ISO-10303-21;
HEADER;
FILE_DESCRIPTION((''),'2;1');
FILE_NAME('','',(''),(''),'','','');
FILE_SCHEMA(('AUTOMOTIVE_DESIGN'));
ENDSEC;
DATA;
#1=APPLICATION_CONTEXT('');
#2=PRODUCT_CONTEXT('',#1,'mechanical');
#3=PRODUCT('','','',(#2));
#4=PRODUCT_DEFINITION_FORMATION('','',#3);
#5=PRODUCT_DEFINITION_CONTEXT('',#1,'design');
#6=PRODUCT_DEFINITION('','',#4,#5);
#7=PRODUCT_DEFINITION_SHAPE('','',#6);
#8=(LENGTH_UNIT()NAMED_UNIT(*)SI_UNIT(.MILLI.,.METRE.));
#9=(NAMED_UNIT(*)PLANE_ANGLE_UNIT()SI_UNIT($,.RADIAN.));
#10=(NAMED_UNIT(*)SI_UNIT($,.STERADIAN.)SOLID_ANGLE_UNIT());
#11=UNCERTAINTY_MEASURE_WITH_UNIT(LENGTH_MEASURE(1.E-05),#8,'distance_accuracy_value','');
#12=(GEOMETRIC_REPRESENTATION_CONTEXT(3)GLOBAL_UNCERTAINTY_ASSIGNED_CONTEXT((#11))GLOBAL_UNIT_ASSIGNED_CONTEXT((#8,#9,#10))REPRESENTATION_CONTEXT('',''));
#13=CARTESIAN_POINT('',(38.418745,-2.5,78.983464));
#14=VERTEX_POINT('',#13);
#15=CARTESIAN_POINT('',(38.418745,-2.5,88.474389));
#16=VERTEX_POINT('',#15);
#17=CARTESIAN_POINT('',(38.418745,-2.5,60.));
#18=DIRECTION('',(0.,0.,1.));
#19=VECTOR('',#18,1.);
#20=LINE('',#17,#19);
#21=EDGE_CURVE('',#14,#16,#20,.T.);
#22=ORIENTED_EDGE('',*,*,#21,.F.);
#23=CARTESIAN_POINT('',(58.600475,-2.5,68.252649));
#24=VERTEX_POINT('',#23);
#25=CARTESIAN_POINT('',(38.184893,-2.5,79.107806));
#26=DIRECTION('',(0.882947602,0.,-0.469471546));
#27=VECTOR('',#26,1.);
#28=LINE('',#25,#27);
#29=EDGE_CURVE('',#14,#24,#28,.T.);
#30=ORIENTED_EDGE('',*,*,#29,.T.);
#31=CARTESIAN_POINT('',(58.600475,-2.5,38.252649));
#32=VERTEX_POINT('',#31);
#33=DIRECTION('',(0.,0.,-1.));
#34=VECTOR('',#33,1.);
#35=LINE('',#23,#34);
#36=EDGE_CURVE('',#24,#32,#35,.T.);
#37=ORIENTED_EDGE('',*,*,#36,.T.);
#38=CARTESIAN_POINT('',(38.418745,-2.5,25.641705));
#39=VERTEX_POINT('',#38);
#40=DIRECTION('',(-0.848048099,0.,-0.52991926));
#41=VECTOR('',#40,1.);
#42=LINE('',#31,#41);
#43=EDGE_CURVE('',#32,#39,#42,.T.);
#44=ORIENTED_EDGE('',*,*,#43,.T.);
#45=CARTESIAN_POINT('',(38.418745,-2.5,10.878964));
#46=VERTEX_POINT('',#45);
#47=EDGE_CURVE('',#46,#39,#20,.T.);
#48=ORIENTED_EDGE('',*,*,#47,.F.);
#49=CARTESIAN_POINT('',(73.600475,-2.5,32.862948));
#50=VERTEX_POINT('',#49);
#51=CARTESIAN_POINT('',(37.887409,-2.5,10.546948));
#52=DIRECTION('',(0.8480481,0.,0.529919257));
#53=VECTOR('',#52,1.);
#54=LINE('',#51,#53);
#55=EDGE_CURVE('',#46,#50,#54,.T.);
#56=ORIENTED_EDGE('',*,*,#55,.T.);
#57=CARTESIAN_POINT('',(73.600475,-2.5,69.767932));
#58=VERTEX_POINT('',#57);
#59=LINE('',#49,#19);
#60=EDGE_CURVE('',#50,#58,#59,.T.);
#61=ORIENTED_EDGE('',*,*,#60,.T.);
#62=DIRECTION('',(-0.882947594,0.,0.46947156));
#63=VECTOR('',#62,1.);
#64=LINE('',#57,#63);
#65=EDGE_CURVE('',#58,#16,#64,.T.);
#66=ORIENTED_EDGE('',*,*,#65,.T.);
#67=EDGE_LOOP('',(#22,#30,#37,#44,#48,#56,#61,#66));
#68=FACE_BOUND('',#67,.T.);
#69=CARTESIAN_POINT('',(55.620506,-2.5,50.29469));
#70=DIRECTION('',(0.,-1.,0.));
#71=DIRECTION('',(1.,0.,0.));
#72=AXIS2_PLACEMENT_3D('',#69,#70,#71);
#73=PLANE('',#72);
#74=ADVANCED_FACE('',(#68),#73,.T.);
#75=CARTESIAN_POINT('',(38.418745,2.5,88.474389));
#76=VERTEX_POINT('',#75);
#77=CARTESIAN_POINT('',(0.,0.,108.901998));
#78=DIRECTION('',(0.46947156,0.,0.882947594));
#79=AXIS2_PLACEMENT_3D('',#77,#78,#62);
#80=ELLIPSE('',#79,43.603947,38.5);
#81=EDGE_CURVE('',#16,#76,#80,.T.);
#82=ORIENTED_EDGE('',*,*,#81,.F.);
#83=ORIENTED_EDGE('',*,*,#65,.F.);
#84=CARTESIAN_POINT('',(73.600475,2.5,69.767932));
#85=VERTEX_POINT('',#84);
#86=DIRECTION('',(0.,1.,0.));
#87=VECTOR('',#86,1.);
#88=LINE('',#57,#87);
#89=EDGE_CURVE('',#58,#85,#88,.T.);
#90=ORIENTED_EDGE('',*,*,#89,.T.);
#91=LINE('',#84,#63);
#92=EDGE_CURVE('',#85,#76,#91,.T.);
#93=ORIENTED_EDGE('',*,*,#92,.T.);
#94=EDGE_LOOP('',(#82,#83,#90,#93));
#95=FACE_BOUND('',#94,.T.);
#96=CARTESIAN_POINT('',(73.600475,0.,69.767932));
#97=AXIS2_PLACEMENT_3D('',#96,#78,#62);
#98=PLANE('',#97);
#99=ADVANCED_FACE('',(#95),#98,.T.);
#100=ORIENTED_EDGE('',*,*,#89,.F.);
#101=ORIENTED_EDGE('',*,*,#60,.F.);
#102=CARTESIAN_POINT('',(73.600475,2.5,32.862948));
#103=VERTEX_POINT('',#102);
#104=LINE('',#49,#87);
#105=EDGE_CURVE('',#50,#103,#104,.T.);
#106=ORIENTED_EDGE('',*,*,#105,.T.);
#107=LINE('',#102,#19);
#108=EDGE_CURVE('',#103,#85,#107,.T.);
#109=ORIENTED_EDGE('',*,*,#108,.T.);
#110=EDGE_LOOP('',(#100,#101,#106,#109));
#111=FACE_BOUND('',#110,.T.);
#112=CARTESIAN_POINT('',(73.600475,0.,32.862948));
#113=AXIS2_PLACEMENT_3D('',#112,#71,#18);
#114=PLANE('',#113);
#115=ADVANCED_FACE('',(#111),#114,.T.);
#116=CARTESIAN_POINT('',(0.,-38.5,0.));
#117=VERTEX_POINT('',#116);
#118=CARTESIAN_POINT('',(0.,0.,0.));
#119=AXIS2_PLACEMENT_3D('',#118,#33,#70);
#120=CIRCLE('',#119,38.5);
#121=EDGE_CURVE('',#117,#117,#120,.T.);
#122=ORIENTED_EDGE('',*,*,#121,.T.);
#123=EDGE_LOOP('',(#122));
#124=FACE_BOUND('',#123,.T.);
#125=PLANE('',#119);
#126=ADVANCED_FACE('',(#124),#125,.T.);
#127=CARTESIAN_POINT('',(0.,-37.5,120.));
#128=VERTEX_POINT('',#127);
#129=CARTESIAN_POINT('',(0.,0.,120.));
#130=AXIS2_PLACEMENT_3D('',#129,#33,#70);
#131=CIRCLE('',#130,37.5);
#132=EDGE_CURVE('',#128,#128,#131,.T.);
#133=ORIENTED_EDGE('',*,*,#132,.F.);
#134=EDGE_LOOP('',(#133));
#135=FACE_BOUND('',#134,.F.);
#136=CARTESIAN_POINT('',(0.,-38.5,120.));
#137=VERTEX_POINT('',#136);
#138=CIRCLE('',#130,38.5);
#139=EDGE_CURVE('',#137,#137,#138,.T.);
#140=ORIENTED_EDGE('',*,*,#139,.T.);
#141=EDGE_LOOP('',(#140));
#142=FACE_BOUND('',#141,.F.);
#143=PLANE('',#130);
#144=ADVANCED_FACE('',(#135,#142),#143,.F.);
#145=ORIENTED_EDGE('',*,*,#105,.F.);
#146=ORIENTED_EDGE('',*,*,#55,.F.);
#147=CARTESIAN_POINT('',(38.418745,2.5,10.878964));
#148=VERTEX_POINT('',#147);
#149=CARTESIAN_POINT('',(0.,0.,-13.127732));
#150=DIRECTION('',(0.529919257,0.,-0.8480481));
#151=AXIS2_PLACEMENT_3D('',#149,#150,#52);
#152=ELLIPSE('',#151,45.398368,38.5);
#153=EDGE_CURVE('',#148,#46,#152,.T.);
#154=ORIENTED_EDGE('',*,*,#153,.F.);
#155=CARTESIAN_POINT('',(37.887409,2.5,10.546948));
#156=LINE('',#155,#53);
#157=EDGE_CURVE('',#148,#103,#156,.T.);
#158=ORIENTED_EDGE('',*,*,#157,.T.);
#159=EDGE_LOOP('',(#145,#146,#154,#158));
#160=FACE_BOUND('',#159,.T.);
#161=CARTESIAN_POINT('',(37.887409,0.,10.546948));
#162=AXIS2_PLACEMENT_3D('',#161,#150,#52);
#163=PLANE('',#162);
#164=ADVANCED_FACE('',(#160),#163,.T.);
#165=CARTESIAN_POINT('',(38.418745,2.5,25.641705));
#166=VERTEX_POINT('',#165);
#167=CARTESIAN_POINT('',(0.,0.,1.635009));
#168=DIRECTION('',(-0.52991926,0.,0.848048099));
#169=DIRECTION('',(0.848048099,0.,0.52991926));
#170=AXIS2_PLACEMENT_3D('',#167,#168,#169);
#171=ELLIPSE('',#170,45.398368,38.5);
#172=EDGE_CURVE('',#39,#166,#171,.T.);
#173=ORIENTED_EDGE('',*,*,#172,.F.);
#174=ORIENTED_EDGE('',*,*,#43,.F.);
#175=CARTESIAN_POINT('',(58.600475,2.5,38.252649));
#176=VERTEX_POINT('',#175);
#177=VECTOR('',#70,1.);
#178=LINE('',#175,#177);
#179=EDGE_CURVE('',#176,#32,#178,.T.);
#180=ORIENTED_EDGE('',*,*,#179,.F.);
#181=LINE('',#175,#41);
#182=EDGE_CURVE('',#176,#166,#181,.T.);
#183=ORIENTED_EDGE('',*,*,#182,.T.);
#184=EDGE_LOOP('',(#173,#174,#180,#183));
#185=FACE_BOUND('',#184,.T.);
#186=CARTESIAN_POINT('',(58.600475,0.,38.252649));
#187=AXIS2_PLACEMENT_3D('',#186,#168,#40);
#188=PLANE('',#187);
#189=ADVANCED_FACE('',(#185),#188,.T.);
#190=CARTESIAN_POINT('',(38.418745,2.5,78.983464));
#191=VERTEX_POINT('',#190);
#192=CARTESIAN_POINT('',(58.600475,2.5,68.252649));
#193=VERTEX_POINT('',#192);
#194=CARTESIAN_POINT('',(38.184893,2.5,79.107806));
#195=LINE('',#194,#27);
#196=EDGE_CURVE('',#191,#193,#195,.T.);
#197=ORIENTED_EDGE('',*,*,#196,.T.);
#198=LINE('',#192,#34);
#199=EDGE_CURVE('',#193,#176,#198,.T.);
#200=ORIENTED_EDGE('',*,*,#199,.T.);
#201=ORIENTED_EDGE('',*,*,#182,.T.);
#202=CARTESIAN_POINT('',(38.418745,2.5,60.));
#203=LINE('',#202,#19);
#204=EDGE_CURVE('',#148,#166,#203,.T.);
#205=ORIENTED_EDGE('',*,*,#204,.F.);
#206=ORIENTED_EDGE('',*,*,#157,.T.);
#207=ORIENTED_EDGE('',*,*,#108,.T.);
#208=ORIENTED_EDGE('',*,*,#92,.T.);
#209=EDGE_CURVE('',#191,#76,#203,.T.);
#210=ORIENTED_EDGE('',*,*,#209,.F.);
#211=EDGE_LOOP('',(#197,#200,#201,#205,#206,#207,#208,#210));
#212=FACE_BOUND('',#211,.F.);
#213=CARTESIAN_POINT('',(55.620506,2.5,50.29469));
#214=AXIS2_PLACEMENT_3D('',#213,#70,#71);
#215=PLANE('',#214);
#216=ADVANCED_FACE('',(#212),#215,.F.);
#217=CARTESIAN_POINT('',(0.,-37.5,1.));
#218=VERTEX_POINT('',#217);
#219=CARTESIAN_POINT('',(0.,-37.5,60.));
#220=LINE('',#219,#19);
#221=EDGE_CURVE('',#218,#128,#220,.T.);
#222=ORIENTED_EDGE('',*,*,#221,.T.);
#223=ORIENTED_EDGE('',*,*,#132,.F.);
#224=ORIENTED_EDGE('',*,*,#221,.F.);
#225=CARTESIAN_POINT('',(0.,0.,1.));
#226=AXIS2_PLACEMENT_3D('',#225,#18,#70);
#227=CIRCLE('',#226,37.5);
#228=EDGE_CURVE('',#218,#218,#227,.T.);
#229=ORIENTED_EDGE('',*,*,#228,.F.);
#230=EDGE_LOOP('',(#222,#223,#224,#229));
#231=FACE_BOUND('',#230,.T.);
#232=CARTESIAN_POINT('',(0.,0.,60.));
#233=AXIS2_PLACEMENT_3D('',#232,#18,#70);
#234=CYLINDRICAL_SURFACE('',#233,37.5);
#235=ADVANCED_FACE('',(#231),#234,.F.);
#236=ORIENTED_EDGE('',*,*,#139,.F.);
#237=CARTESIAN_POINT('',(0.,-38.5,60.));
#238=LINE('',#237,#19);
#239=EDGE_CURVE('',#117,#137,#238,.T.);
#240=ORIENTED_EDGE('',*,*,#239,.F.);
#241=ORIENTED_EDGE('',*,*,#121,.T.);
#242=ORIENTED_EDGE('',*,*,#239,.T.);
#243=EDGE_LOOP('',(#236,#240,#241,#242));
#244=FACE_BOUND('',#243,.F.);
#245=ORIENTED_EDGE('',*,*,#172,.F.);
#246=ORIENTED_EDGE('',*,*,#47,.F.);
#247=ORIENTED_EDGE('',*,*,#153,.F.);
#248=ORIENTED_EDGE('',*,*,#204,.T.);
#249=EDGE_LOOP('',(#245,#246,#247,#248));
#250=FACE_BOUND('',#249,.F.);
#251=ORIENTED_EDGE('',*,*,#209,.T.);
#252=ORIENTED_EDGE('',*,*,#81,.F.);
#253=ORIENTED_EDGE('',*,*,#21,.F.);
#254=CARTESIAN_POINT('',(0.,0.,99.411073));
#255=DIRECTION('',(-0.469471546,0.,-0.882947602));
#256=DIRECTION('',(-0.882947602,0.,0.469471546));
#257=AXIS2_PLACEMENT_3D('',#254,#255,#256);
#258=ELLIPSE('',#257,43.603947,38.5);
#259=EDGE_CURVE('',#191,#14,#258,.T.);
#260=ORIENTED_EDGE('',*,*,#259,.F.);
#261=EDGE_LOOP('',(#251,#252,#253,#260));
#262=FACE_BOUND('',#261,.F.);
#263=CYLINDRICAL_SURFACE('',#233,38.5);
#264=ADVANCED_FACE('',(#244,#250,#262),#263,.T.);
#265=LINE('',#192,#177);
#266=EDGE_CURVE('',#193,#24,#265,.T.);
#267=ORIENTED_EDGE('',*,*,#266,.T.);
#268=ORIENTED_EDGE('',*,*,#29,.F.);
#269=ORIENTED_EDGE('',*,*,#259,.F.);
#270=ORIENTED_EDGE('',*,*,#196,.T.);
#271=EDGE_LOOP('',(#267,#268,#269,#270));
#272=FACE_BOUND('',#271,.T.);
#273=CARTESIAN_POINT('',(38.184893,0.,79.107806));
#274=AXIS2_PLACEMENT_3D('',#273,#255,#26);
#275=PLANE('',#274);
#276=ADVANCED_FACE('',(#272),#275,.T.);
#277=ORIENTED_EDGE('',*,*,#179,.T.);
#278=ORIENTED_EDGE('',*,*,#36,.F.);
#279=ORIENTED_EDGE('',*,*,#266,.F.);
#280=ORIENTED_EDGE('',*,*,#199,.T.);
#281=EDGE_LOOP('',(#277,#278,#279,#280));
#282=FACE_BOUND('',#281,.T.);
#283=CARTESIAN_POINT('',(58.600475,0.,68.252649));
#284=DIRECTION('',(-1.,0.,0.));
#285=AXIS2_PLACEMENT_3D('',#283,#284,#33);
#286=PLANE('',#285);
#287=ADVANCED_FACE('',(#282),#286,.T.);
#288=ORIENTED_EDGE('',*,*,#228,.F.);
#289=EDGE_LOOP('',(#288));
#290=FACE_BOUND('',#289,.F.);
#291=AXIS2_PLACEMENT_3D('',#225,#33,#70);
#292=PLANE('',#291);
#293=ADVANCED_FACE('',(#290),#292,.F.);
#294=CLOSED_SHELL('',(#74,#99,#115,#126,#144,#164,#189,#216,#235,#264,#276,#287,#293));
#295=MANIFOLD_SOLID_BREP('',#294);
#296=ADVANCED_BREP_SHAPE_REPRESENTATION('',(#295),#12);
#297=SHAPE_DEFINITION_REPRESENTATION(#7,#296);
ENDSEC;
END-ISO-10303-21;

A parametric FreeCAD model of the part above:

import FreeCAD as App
import Part
import Sketcher
from FreeCAD import Vector
Q = App.Units.Quantity


def faces_at(feature, points):
    """Names of the faces that lie closest to the given points."""
    faces = feature.Shape.Faces
    near = lambda p: min(range(len(faces)), key=lambda i: faces[i].distToShape(Part.Vertex(*p))[0])
    return sorted({f"Face{near(p) + 1}" for p in points})

doc = App.newDocument("Part")
params = doc.addObject("Spreadsheet::Sheet", "Params")
for row, (alias, value) in enumerate([
    ("sketch1_height", "120 mm"),
    ("sketch1_width", "38.5 mm"),
    ("revolution_angle", "360 deg"),
    ("thickness_wall", "1 mm"),
    ("sketch2_height", "30 mm"),
    ("pad1_length", "5 mm"),
], start=1):
    params.set(f"A{row}", alias)
    params.set(f"B{row}", "=" + value)
    params.setAlias(f"B{row}", alias)

body = doc.addObject("PartDesign::Body", "Body")

sketch1 = body.newObject("Sketcher::SketchObject", "Sketch")
sketch1.AttachmentSupport = (doc.getObject("YZ_Plane"), [""])
sketch1.MapMode = "FlatFace"
sketch1.addGeometry(Part.LineSegment(Vector(-38.5, 120, 0), Vector(-38.5, 0, 0)), False)
sketch1.addGeometry(Part.LineSegment(Vector(-38.5, 0, 0), Vector(0, 0, 0)), False)
sketch1.addGeometry(Part.LineSegment(Vector(0, 0, 0), Vector(0, 120, 0)), False)
sketch1.addGeometry(Part.LineSegment(Vector(0, 120, 0), Vector(-38.5, 120, 0)), False)
sketch1.addConstraint(Sketcher.Constraint("Coincident", 0, 2, 1, 1))
sketch1.addConstraint(Sketcher.Constraint("Coincident", 1, 2, 2, 1))
sketch1.addConstraint(Sketcher.Constraint("Coincident", 2, 2, 3, 1))
sketch1.addConstraint(Sketcher.Constraint("Coincident", 3, 2, 0, 1))
sketch1.addConstraint(Sketcher.Constraint("Vertical", 0))
sketch1.addConstraint(Sketcher.Constraint("Horizontal", 1))
sketch1.addConstraint(Sketcher.Constraint("Vertical", 2))
sketch1.addConstraint(Sketcher.Constraint("Horizontal", 3))
sketch1.addConstraint(Sketcher.Constraint("Coincident", 1, 2, -1, 1))
sketch1.addConstraint(Sketcher.Constraint("DistanceY", 0, 2, 0, 1, Q("120 mm")))
sketch1.addConstraint(Sketcher.Constraint("DistanceX", 1, 1, 1, 2, Q("38.5 mm")))
sketch1.setExpression("Constraints[9]", "Params.sketch1_height")
sketch1.setExpression("Constraints[10]", "Params.sketch1_width")
revolution = body.newObject("PartDesign::Revolution", "Revolution")
revolution.Profile = sketch1
revolution.ReferenceAxis = (sketch1, ["V_Axis"])
revolution.setExpression("Angle", "Params.revolution_angle")
doc.recompute()

thickness = body.newObject("PartDesign::Thickness", "Thickness")
thickness.Base = (revolution, faces_at(revolution, [(0, 0, 120)]))
thickness.setExpression("Value", "Params.thickness_wall")
thickness.Reversed = True
thickness.Join = "Arc"

sketch2 = body.newObject("Sketcher::SketchObject", "Sketch001")
sketch2.AttachmentSupport = (doc.getObject("XZ_Plane"), [""])
sketch2.MapMode = "FlatFace"
sketch2.addGeometry(Part.LineSegment(Vector(73.600475, 69.767932, 0), Vector(38.349035, 88.511455, 0)), False)
sketch2.addGeometry(Part.LineSegment(Vector(38.349035, 88.511455, 0), Vector(38.184893, 79.107806, 0)), False)
sketch2.addGeometry(Part.LineSegment(Vector(38.184893, 79.107806, 0), Vector(58.600475, 68.252649, 0)), False)
sketch2.addGeometry(Part.LineSegment(Vector(58.600475, 68.252649, 0), Vector(58.600475, 38.252649, 0)), False)
sketch2.addGeometry(Part.LineSegment(Vector(58.600475, 38.252649, 0), Vector(37.887409, 25.309689, 0)), False)
sketch2.addGeometry(Part.LineSegment(Vector(37.887409, 25.309689, 0), Vector(37.887409, 10.546948, 0)), False)
sketch2.addGeometry(Part.LineSegment(Vector(37.887409, 10.546948, 0), Vector(73.600475, 32.862948, 0)), False)
sketch2.addGeometry(Part.LineSegment(Vector(73.600475, 32.862948, 0), Vector(73.600475, 69.767932, 0)), False)
sketch2.addConstraint(Sketcher.Constraint("Coincident", 0, 2, 1, 1))
sketch2.addConstraint(Sketcher.Constraint("Coincident", 1, 2, 2, 1))
sketch2.addConstraint(Sketcher.Constraint("Coincident", 2, 2, 3, 1))
sketch2.addConstraint(Sketcher.Constraint("Coincident", 3, 2, 4, 1))
sketch2.addConstraint(Sketcher.Constraint("Coincident", 4, 2, 5, 1))
sketch2.addConstraint(Sketcher.Constraint("Coincident", 5, 2, 6, 1))
sketch2.addConstraint(Sketcher.Constraint("Coincident", 6, 2, 7, 1))
sketch2.addConstraint(Sketcher.Constraint("Coincident", 7, 2, 0, 1))
sketch2.addConstraint(Sketcher.Constraint("Vertical", 3))
sketch2.addConstraint(Sketcher.Constraint("Vertical", 5))
sketch2.addConstraint(Sketcher.Constraint("Vertical", 7))
sketch2.addConstraint(Sketcher.Constraint("Parallel", 0, 2))
sketch2.addConstraint(Sketcher.Constraint("Parallel", 4, 6))
sketch2.addConstraint(Sketcher.Constraint("DistanceY", 3, 2, 3, 1, Q("30 mm")))
sketch2.addConstraint(Sketcher.Constraint("Angle", 0, Q("152 deg")))
sketch2.addConstraint(Sketcher.Constraint("Angle", 1, Q("-91.000004 deg")))
sketch2.addConstraint(Sketcher.Constraint("Angle", 4, Q("-148 deg")))
sketch2.addConstraint(Sketcher.Constraint("DistanceX", 3, 2, 6, 2, Q("15 mm")))
sketch2.addConstraint(Sketcher.Constraint("DistanceY", 5, 2, 6, 2, Q("22.316 mm")))
sketch2.addConstraint(Sketcher.Constraint("DistanceY", 5, 2, 5, 1, Q("14.762741 mm")))
sketch2.addConstraint(Sketcher.Constraint("Distance", 1, Q("9.405081 mm")))
sketch2.addConstraint(Sketcher.Constraint("DistanceY", -1, 1, 2, 2, Q("68.252649 mm")))
sketch2.addConstraint(Sketcher.Constraint("DistanceX", -1, 1, 4, 2, Q("37.887409 mm")))
sketch2.addConstraint(Sketcher.Constraint("DistanceX", 0, 2, 2, 2, Q("20.25144 mm")))
sketch2.setExpression("Constraints[13]", "Params.sketch2_height")
pad1 = body.newObject("PartDesign::Pad", "Pad")
pad1.Profile = sketch2
pad1.setExpression("Length", "Params.pad1_length")
pad1.Midplane = True

doc.recompute()
